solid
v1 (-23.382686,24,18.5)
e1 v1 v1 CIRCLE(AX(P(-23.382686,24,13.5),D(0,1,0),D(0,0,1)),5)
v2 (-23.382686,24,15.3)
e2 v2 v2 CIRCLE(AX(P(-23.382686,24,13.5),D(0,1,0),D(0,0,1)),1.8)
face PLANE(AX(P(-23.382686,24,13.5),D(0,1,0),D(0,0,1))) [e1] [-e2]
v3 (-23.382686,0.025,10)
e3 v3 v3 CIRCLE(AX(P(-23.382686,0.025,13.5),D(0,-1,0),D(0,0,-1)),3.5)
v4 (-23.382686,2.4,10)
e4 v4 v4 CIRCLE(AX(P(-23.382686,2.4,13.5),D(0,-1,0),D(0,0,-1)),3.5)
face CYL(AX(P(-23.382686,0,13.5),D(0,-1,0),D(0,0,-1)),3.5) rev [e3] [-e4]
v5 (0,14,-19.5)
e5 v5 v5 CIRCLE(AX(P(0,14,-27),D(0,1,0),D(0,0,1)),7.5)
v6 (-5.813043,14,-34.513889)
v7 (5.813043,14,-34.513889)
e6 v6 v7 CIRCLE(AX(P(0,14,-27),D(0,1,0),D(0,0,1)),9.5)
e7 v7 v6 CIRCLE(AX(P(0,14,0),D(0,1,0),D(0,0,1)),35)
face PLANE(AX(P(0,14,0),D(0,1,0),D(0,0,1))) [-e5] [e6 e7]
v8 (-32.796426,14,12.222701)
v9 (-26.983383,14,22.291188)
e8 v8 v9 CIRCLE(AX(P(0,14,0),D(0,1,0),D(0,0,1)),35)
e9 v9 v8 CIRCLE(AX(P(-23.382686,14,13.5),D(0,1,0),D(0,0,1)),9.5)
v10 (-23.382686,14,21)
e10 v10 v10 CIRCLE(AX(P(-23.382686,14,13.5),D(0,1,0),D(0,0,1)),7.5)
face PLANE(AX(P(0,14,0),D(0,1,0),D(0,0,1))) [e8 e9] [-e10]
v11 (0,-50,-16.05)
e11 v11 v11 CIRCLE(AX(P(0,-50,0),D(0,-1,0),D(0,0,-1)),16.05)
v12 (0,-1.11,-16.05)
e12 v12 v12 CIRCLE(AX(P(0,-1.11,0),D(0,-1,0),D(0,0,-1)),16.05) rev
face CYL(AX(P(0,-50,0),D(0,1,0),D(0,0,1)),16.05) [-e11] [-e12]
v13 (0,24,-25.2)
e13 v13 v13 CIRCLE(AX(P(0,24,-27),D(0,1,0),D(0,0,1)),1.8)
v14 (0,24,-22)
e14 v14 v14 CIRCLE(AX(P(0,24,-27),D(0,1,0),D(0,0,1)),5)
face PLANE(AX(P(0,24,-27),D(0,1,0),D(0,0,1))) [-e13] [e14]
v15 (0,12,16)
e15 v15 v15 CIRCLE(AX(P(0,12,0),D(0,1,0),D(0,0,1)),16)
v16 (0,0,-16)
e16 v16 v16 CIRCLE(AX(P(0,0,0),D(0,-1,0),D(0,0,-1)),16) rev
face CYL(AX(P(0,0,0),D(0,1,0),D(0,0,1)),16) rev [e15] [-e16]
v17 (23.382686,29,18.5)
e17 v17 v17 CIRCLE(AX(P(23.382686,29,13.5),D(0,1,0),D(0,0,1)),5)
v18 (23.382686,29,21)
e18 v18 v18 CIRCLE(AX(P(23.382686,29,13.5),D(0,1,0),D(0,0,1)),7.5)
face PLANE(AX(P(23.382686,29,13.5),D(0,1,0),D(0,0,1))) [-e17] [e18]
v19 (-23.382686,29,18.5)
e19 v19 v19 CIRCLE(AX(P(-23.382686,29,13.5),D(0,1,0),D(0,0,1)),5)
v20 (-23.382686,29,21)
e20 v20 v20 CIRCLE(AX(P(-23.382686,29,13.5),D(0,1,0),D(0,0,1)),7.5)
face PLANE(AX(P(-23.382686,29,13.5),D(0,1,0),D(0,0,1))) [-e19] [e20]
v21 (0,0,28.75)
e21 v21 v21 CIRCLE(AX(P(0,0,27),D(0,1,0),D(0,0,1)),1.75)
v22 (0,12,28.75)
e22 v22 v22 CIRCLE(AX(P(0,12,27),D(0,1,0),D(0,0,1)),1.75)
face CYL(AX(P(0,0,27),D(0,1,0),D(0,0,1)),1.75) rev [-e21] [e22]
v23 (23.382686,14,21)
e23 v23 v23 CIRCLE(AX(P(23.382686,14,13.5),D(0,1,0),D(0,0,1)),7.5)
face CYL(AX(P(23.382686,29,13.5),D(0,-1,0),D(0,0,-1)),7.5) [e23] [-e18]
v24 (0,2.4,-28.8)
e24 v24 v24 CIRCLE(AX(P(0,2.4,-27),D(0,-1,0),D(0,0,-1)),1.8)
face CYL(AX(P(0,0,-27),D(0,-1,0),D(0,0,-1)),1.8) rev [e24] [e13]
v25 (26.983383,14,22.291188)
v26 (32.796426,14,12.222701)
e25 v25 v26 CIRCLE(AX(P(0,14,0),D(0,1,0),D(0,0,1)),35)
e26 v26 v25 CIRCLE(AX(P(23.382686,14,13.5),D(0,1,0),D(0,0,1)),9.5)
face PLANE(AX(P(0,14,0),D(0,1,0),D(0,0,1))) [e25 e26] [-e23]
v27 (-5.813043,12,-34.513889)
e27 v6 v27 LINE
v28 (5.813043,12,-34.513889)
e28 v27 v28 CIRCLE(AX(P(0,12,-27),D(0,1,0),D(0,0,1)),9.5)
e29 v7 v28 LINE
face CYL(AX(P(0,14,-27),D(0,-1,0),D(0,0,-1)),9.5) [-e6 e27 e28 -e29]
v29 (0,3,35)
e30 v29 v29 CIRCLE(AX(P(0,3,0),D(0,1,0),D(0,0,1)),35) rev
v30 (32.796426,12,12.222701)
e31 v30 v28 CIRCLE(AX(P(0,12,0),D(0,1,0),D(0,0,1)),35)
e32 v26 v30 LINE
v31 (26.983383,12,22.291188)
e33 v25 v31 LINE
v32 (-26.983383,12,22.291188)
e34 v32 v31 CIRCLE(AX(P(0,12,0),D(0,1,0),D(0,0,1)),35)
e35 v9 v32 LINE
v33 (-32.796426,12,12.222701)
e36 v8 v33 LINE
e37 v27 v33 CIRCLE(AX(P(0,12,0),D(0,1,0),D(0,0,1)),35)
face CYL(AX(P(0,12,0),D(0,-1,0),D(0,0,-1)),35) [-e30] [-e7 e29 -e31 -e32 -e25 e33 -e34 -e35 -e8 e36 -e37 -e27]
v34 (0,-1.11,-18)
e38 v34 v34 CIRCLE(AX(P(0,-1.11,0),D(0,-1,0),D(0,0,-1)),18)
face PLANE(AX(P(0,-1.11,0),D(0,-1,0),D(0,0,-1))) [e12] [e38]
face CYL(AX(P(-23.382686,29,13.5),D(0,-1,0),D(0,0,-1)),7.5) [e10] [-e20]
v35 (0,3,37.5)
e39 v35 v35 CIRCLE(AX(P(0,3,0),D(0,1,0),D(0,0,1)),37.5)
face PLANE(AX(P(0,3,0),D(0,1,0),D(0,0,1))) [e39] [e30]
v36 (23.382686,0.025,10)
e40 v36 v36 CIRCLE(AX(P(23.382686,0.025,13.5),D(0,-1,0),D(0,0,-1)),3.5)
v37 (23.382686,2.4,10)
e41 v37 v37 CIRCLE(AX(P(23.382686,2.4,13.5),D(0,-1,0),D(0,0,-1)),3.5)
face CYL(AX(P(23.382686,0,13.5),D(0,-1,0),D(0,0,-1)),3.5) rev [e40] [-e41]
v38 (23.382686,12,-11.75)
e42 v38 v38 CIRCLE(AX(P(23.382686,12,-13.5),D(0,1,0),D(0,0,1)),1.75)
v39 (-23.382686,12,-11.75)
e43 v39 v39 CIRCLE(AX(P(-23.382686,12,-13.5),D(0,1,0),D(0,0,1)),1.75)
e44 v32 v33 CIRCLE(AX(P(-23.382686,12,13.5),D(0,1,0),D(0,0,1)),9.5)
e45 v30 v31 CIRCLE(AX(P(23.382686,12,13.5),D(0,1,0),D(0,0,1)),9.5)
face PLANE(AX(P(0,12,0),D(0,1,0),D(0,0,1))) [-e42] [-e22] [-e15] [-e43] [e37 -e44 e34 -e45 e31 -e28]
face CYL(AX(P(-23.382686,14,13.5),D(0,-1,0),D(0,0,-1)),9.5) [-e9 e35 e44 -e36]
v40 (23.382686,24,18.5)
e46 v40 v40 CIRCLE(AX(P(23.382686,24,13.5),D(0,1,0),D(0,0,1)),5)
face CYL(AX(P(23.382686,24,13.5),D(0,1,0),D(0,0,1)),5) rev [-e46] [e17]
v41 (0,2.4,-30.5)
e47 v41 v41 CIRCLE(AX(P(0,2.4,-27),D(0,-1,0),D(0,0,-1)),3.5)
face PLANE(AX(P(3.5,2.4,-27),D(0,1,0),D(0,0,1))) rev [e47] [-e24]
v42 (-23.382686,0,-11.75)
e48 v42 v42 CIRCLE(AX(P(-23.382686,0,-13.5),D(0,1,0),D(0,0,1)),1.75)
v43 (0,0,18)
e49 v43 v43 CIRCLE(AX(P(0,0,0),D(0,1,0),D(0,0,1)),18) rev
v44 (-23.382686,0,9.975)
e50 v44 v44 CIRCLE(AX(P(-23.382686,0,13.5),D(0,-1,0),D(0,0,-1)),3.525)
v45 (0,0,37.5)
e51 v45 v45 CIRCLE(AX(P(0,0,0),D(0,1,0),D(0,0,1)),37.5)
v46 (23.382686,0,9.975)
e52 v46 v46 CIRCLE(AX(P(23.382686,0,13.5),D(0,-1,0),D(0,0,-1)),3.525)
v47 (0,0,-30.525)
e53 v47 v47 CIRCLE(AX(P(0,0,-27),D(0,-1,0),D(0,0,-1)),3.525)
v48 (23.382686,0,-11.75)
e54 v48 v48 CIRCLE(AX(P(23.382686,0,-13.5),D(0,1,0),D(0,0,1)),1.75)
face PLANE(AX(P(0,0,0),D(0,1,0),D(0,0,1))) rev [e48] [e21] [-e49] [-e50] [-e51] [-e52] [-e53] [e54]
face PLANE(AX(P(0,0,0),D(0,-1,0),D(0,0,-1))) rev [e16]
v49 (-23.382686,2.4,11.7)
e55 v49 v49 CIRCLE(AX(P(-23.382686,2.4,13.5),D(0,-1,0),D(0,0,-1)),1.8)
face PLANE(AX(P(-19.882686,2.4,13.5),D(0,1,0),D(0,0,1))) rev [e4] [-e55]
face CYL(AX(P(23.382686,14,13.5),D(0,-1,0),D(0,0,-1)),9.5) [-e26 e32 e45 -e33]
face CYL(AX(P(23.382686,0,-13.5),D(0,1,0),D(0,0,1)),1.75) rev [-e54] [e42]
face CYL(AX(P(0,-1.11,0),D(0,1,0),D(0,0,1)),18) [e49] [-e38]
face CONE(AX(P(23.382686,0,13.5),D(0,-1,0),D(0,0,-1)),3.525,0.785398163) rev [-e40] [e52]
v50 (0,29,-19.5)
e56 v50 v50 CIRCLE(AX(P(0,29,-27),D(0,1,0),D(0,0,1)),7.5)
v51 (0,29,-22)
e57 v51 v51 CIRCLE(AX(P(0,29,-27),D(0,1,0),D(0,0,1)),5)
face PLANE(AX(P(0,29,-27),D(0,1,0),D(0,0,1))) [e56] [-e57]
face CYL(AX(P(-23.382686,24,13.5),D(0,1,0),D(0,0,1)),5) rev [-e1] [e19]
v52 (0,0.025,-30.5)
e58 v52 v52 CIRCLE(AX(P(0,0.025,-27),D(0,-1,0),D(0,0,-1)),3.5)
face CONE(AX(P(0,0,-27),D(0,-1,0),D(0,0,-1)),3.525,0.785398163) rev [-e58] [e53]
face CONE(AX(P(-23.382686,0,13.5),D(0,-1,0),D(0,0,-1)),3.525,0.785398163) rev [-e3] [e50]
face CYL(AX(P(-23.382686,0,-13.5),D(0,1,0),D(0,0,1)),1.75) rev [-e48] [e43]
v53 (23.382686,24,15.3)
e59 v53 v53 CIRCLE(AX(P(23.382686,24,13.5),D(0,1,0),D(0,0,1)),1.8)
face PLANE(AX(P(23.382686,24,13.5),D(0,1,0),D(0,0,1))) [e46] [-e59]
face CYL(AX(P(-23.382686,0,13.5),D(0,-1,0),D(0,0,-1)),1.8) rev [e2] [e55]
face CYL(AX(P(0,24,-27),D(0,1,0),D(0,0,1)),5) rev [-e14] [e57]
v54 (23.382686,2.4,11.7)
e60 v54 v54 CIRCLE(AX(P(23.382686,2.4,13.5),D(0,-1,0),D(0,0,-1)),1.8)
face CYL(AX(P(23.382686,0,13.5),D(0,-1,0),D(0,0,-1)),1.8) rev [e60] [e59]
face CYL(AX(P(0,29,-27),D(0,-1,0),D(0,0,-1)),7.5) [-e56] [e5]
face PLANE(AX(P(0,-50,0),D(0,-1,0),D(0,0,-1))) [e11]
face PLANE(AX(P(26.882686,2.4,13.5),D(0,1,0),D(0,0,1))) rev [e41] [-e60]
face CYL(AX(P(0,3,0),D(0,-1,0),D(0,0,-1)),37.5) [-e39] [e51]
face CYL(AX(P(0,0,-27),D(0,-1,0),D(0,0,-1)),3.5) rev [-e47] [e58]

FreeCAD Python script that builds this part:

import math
import FreeCAD as App
import Part
import Sketcher
Q = App.Units.Quantity


def add_polygon(sketch, points):
    """Adds a closed chain of lines whose ends are joined by coincident constraints."""
    first, n = sketch.GeometryCount, len(points)
    for a, b in zip(points, points[1:] + points[:1]):
        sketch.addGeometry(Part.LineSegment(App.Vector(*a, 0), App.Vector(*b, 0)), False)
    for i in range(n):
        sketch.addConstraint(Sketcher.Constraint("Coincident", first + i, 2, first + (i + 1) % n, 1))

doc = App.newDocument("Part")
body = doc.addObject("PartDesign::Body", "Body")

# Sketch on XZ plane
sketch1 = body.newObject("Sketcher::SketchObject", "Sketch")
sketch1.AttachmentSupport = (doc.getObject("XZ_Plane"), [""])
sketch1.MapMode = "FlatFace"
sketch1.addGeometry(Part.Circle(App.Vector(0, 0, 0), App.Vector(0, 0, 1), 38), False)
sketch1.addConstraint([
    Sketcher.Constraint("Coincident", 0, 3, -1, 1),
    Sketcher.Constraint("Diameter", 0, 75.0),
])
pad1 = body.newObject("PartDesign::Pad", "Pad")
pad1.Profile = sketch1
pad1.Length = 3
pad1.Reversed = True

# Sketch on XZ plane
sketch2 = body.newObject("Sketcher::SketchObject", "Sketch001")
sketch2.AttachmentSupport = (doc.getObject("XZ_Plane"), [""])
sketch2.MapMode = "FlatFace"
sketch2.addGeometry(Part.Circle(App.Vector(0, 0, 0), App.Vector(0, 0, 1), 35), False)
sketch2.addConstraint([
    Sketcher.Constraint("Coincident", 0, 3, -1, 1),
    Sketcher.Constraint("Diameter", 0, 70.0),
])
pad2 = body.newObject("PartDesign::Pad", "Pad001")
pad2.Profile = sketch2
pad2.Length = 12
pad2.Reversed = True

# Sketch on XZ plane
sketch3 = body.newObject("Sketcher::SketchObject", "Sketch002")
sketch3.AttachmentSupport = (doc.getObject("XZ_Plane"), [""])
sketch3.MapMode = "FlatFace"
sketch3.AttachmentOffset = App.Placement(App.Vector(0, 0, -12), App.Rotation())
sketch3.addGeometry(Part.Circle(App.Vector(0, 0, 0), App.Vector(0, 0, 1), 16), False)
sketch3.addConstraint([
    Sketcher.Constraint("Coincident", 0, 3, -1, 1),
    Sketcher.Constraint("Diameter", 0, 32.0),
])
pocket1 = body.newObject("PartDesign::Pocket", "Pocket")
pocket1.Profile = sketch3
pocket1.Type = "ThroughAll"
pocket1.Reversed = True

# Sketch on XZ plane
sketch4 = body.newObject("Sketcher::SketchObject", "Sketch003")
sketch4.AttachmentSupport = (doc.getObject("XZ_Plane"), [""])
sketch4.MapMode = "FlatFace"
sketch4.AttachmentOffset = App.Placement(App.Vector(0, 0, -12), App.Rotation())
sketch4.addGeometry([
    Part.ArcOfCircle(Part.Circle(App.Vector(0, 0, 0), App.Vector(0, 0, 1), 35), math.radians(-99.56), math.radians(-80.44)),  # 0
    Part.ArcOfCircle(Part.Circle(App.Vector(0, -27, 0), App.Vector(0, 0, 1), 10), math.radians(-52), math.radians(232)),  # 1
    Part.ArcOfCircle(Part.Circle(App.Vector(-23, 14, 0), App.Vector(0, 0, 1), 10), math.radians(-172), math.radians(112)),  # 2
    Part.ArcOfCircle(Part.Circle(App.Vector(0, 0, 0), App.Vector(0, 0, 1), 35), math.radians(140.44), math.radians(159.56)),  # 3
    Part.ArcOfCircle(Part.Circle(App.Vector(0, 0, 0), App.Vector(0, 0, 1), 35), math.radians(20.44), math.radians(39.56)),  # 4
    Part.ArcOfCircle(Part.Circle(App.Vector(23, 14, 0), App.Vector(0, 0, 1), 10), math.radians(68), math.radians(352)),  # 5
], False)
sketch4.addConstraint([
    Sketcher.Constraint("Coincident", 0, 1, 1, 2),
    Sketcher.Constraint("Coincident", 1, 1, 0, 2),
    Sketcher.Constraint("Coincident", 2, 1, 3, 2),
    Sketcher.Constraint("Coincident", 3, 1, 2, 2),
    Sketcher.Constraint("Coincident", 4, 1, 5, 2),
    Sketcher.Constraint("Coincident", 5, 1, 4, 2),
    Sketcher.Constraint("Coincident", 0, 3, -1, 1),
    Sketcher.Constraint("Coincident", 3, 3, -1, 1),
    Sketcher.Constraint("Coincident", 4, 3, -1, 1),
    Sketcher.Constraint("Equal", 1, 2),
    Sketcher.Constraint("Equal", 0, 3),
    Sketcher.Constraint("Equal", 3, 4),
    Sketcher.Constraint("Equal", 2, 5),
    Sketcher.Constraint("Symmetric", 2, 3, 5, 3, -2),
    Sketcher.Constraint("PointOnObject", 1, 3, -2),
    Sketcher.Constraint("Radius", 0, 35.0),
    Sketcher.Constraint("Radius", 1, 9.5),
    Sketcher.Constraint("DistanceY", 1, 3, -1, 1, 27.0),
    Sketcher.Constraint("DistanceY", -1, 1, 2, 3, 13.5),
    Sketcher.Constraint("DistanceY", -1, 1, 2, 1, 12.222701),
])
pad3 = body.newObject("PartDesign::Pad", "Pad002")
pad3.Profile = sketch4
pad3.Length = 2
pad3.Reversed = True

# Sketch on XZ plane
sketch5 = body.newObject("Sketcher::SketchObject", "Sketch004")
sketch5.AttachmentSupport = (doc.getObject("XZ_Plane"), [""])
sketch5.MapMode = "FlatFace"
sketch5.AttachmentOffset = App.Placement(App.Vector(0, 0, -14), App.Rotation())
sketch5.addGeometry([
    Part.Circle(App.Vector(0, -27, 0), App.Vector(0, 0, 1), 8),
    Part.Circle(App.Vector(23, 14, 0), App.Vector(0, 0, 1), 8),
    Part.Circle(App.Vector(-23, 14, 0), App.Vector(0, 0, 1), 8),
], False)
sketch5.addConstraint([
    Sketcher.Constraint("Equal", 0, 1),
    Sketcher.Constraint("Equal", 1, 2),
    Sketcher.Constraint("Symmetric", 1, 3, 2, 3, -2),
    Sketcher.Constraint("PointOnObject", 0, 3, -2),
    Sketcher.Constraint("Diameter", 0, 15.0),
    Sketcher.Constraint("DistanceY", 0, 3, -1, 1, 27.0),
    Sketcher.Constraint("DistanceY", -1, 1, 1, 3, 13.5),
    Sketcher.Constraint("DistanceX", 2, 3, 1, 3, 46.765372),
])
pad4 = body.newObject("PartDesign::Pad", "Pad003")
pad4.Profile = sketch5
pad4.Length = 15
pad4.Reversed = True

# Sketch on XZ plane
sketch6 = body.newObject("Sketcher::SketchObject", "Sketch005")
sketch6.AttachmentSupport = (doc.getObject("XZ_Plane"), [""])
sketch6.MapMode = "FlatFace"
sketch6.AttachmentOffset = App.Placement(App.Vector(0, 0, -29), App.Rotation())
sketch6.addGeometry([
    Part.Circle(App.Vector(0, -27, 0), App.Vector(0, 0, 1), 5),
    Part.Circle(App.Vector(23, 14, 0), App.Vector(0, 0, 1), 5),
    Part.Circle(App.Vector(-23, 14, 0), App.Vector(0, 0, 1), 5),
], False)
sketch6.addConstraint([
    Sketcher.Constraint("Equal", 0, 1),
    Sketcher.Constraint("Equal", 1, 2),
    Sketcher.Constraint("Symmetric", 1, 3, 2, 3, -2),
    Sketcher.Constraint("PointOnObject", 0, 3, -2),
    Sketcher.Constraint("Diameter", 0, 10.0),
    Sketcher.Constraint("DistanceY", 0, 3, -1, 1, 27.0),
    Sketcher.Constraint("DistanceY", -1, 1, 1, 3, 13.5),
    Sketcher.Constraint("DistanceX", 2, 3, 1, 3, 46.765372),
])
pocket2 = body.newObject("PartDesign::Pocket", "Pocket001")
pocket2.Profile = sketch6
pocket2.Length = 5
pocket2.Reversed = True

# Sketch on YZ plane
sketch7 = body.newObject("Sketcher::SketchObject", "Sketch006")
sketch7.AttachmentSupport = (doc.getObject("YZ_Plane"), [""])
sketch7.MapMode = "FlatFace"
add_polygon(sketch7, [(29, -27), (0, -27), (0, -30.525), (0.025, -30.5), (2.4, -30.5), (2.4, -28.8), (29, -28.8)])  # lines 0-6
sketch7.addGeometry(Part.LineSegment(App.Vector(0, -27, 0), App.Vector(29, -27, 0)), True)  # axis
sketch7.addConstraint([
    Sketcher.Constraint("Horizontal", 0),
    Sketcher.Constraint("Vertical", 1),
    Sketcher.Constraint("Horizontal", 3),
    Sketcher.Constraint("Vertical", 4),
    Sketcher.Constraint("Horizontal", 5),
    Sketcher.Constraint("Vertical", 6),
    Sketcher.Constraint("Horizontal", 7),
    Sketcher.Constraint("Coincident", 7, 1, 0, 2),
    Sketcher.Constraint("PointOnObject", 0, 2, -2),
    Sketcher.Constraint("Vertical", 5, 2, 7, 2),
    Sketcher.Constraint("DistanceX", 0, 2, 0, 1, 29.0),
    Sketcher.Constraint("Angle", 2, Q("45 deg")),
    Sketcher.Constraint("DistanceX", 5, 1, 5, 2, 26.6),
    Sketcher.Constraint("DistanceY", 4, 1, 4, 2, 1.7),
    Sketcher.Constraint("DistanceY", 6, 1, 6, 2, 1.8),
    Sketcher.Constraint("DistanceY", 0, 2, -1, 1, 27.0),
    Sketcher.Constraint("DistanceX", 3, 1, 3, 2, 2.375),
])
groove = body.newObject("PartDesign::Groove", "Groove")
groove.Profile = sketch7
groove.ReferenceAxis = (sketch7, ["Axis0"])
groove.Angle = 360
doc.recompute()

datumline = body.newObject("PartDesign::Line", "DatumLine")
datumline.Placement = App.Placement(App.Vector(0, 0, 0), App.Rotation(App.Vector(0, 0, 1), App.Vector(-0.5, 0, 0.866025404)))
linearpattern = body.newObject("PartDesign::LinearPattern", "LinearPattern")
linearpattern.Originals = [groove]
linearpattern.Direction = (datumline, [""])
linearpattern.Mode = "offset"
linearpattern.Offset = 46.765372
linearpattern.Occurrences = 2
body.Tip = linearpattern
doc.recompute()

datumline2 = body.newObject("PartDesign::Line", "DatumLine001")
datumline2.Placement = App.Placement(App.Vector(0, 0, 0), App.Rotation(App.Vector(0, 0, 1), App.Vector(0.5, 0, 0.866025404)))
linearpattern2 = body.newObject("PartDesign::LinearPattern", "LinearPattern001")
linearpattern2.Originals = [groove]
linearpattern2.Direction = (datumline2, [""])
linearpattern2.Mode = "offset"
linearpattern2.Offset = 46.765372
linearpattern2.Occurrences = 2
body.Tip = linearpattern2

# Sketch on XZ plane
sketch8 = body.newObject("Sketcher::SketchObject", "Sketch007")
sketch8.AttachmentSupport = (doc.getObject("XZ_Plane"), [""])
sketch8.MapMode = "FlatFace"
sketch8.AttachmentOffset = App.Placement(App.Vector(0, 0, -12), App.Rotation())
sketch8.addGeometry([
    Part.Circle(App.Vector(23.4, -13.5, 0), App.Vector(0, 0, 1), 1.8),
    Part.Circle(App.Vector(0, 27, 0), App.Vector(0, 0, 1), 1.8),
    Part.Circle(App.Vector(-23.4, -13.5, 0), App.Vector(0, 0, 1), 1.8),
], False)
sketch8.addConstraint([
    Sketcher.Constraint("Equal", 0, 1),
    Sketcher.Constraint("Equal", 1, 2),
    Sketcher.Constraint("Symmetric", 0, 3, 2, 3, -2),
    Sketcher.Constraint("PointOnObject", 1, 3, -2),
    Sketcher.Constraint("Diameter", 0, 3.5),
    Sketcher.Constraint("DistanceY", -1, 1, 1, 3, 27.0),
    Sketcher.Constraint("DistanceY", 0, 3, -1, 1, 13.5),
    Sketcher.Constraint("DistanceX", 2, 3, 0, 3, 46.765372),
])
pocket3 = body.newObject("PartDesign::Pocket", "Pocket002")
pocket3.Profile = sketch8
pocket3.Type = "ThroughAll"
pocket3.Reversed = True
body2 = doc.addObject("PartDesign::Body", "Body001")

# Sketch on XZ plane
sketch9 = body2.newObject("Sketcher::SketchObject", "Sketch008")
sketch9.AttachmentSupport = (doc.getObject("XZ_Plane001"), [""])
sketch9.MapMode = "FlatFace"
sketch9.addGeometry(Part.Circle(App.Vector(0, 0, 0), App.Vector(0, 0, 1), 16), False)
sketch9.addConstraint([
    Sketcher.Constraint("Coincident", 0, 3, -1, 1),
    Sketcher.Constraint("Diameter", 0, 32.1),
])
pad5 = body2.newObject("PartDesign::Pad", "Pad004")
pad5.Profile = sketch9
pad5.Length = 50
doc.recompute()

boolean = body.newObject("PartDesign::Boolean", "Boolean")
boolean.Type = "Fuse"
boolean.addObjects([body2])

# Sketch on XZ plane
sketch10 = body.newObject("Sketcher::SketchObject", "Sketch009")
sketch10.AttachmentSupport = (doc.getObject("XZ_Plane"), [""])
sketch10.MapMode = "FlatFace"
sketch10.addGeometry([
    Part.Circle(App.Vector(0, 0, 0), App.Vector(0, 0, 1), 18),
    Part.Circle(App.Vector(0, 0, 0), App.Vector(0, 0, 1), 16),
], False)
sketch10.addConstraint([
    Sketcher.Constraint("Coincident", 0, 3, -1, 1),
    Sketcher.Constraint("Coincident", 1, 3, -1, 1),
    Sketcher.Constraint("Diameter", 0, 36.0),
    Sketcher.Constraint("Diameter", 1, 32.0),
])
pad6 = body.newObject("PartDesign::Pad", "Pad005")
pad6.Profile = sketch10
pad6.Length = 1.11

doc.recompute()
